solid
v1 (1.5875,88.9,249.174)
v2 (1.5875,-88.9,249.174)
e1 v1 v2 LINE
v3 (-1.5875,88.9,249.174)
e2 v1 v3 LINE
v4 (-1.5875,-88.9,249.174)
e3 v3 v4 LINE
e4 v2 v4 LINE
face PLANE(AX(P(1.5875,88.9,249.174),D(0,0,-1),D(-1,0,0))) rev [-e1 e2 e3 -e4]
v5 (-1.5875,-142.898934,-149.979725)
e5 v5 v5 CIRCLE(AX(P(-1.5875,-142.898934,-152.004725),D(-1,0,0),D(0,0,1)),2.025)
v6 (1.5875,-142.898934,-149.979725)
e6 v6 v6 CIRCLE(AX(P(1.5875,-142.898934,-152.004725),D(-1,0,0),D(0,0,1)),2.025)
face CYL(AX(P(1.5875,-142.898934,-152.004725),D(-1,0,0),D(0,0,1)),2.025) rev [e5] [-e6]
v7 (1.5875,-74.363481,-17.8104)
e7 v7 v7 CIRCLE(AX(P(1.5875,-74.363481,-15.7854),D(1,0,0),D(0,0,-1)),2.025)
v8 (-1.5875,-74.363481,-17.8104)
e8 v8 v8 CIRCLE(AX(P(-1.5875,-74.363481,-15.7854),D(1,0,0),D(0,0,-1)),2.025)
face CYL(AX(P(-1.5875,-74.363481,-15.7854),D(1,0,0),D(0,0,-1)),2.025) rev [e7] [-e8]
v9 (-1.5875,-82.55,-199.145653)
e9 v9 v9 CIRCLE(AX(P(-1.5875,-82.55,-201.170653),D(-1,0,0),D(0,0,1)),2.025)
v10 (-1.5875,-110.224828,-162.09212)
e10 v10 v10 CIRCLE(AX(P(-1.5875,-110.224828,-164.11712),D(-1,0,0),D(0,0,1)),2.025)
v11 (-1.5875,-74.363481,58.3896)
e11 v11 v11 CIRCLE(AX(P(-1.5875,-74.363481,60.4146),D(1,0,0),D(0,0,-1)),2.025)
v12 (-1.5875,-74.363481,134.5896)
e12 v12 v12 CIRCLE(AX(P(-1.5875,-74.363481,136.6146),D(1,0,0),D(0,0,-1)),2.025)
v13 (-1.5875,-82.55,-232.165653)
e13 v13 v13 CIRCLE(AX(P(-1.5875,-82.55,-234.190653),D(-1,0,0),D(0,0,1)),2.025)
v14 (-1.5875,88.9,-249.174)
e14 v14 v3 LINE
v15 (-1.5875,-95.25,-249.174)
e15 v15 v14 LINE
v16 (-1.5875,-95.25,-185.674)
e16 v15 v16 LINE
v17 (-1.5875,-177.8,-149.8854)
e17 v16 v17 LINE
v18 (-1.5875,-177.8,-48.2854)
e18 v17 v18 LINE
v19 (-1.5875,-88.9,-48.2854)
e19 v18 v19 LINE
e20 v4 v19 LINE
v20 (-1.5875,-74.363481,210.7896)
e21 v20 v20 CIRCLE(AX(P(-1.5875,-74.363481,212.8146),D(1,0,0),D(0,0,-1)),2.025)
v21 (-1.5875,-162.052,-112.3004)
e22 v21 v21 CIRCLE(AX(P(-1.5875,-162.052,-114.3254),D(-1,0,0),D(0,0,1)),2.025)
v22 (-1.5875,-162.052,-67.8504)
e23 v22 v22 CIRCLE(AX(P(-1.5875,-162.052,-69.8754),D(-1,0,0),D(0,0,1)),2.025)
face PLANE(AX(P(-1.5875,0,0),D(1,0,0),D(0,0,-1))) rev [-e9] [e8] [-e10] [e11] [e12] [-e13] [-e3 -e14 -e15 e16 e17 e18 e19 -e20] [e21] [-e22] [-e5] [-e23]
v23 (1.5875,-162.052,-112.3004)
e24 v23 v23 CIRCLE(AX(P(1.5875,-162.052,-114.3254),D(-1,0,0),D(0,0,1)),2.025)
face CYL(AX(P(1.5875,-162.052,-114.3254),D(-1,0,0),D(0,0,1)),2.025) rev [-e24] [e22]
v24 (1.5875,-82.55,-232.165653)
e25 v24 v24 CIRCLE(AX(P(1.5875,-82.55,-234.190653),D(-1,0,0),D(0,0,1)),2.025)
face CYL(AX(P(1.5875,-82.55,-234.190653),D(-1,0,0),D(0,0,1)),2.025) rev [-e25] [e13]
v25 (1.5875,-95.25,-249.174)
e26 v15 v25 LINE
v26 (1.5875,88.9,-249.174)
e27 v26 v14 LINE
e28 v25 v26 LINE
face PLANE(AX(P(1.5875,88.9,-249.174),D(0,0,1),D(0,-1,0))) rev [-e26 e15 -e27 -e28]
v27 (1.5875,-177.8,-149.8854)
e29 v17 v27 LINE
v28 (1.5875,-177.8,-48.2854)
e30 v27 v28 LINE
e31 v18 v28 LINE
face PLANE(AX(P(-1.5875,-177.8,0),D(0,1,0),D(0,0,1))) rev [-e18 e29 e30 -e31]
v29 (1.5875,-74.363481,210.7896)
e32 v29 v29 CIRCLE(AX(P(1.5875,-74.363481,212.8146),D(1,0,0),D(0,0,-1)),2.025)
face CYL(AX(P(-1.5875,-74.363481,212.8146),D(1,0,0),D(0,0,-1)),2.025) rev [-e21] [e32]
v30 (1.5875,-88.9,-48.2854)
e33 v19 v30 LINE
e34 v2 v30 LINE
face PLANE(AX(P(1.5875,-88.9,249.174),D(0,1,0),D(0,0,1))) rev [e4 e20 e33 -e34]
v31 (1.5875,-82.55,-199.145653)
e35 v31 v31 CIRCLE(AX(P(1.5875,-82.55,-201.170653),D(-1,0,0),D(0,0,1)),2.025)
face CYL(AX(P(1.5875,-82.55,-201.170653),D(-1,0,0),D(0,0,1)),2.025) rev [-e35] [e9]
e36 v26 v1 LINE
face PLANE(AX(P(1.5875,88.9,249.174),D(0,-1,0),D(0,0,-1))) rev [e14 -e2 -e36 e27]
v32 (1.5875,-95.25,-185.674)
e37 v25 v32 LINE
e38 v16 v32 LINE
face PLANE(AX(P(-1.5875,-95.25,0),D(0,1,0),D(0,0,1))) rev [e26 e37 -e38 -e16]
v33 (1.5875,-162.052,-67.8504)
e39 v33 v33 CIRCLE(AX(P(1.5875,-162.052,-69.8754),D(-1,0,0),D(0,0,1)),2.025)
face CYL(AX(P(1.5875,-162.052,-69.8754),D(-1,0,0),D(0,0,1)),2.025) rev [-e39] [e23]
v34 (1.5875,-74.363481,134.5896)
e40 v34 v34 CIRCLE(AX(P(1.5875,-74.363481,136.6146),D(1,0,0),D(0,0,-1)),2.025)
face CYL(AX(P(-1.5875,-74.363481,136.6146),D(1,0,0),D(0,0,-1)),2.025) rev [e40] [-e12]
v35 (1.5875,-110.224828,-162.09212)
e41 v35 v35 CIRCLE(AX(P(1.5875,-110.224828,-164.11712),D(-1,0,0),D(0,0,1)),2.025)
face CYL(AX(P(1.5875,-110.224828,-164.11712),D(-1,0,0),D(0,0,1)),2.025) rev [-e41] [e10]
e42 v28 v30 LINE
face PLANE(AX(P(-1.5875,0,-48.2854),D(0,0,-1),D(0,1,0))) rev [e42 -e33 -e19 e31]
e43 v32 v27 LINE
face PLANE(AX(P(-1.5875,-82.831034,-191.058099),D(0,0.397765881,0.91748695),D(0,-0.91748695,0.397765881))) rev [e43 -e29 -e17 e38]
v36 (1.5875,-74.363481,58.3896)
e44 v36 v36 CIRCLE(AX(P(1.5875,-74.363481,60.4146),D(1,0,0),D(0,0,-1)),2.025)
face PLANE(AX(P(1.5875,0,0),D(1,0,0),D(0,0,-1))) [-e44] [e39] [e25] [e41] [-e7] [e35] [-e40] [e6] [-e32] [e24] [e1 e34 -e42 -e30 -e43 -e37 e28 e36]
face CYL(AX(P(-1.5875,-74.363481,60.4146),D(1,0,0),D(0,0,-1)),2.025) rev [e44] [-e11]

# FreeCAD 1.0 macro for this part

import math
import FreeCAD as App
import Part
import Sketcher
Q = App.Units.Quantity

doc = App.newDocument("Part")
body = doc.addObject("PartDesign::Body", "Body")

# Sketch on YZ plane
sketch1 = doc.addObject("Sketcher::SketchObject", "Sketch")
body.addObject(sketch1)
sketch1.AttachmentSupport = (doc.YZ_Plane, [""])
sketch1.MapMode = "FlatFace"
sketch1.addGeometry(Part.LineSegment(App.Vector(89, 249, 0), App.Vector(-89, 249, 0)), False)
sketch1.addGeometry(Part.LineSegment(App.Vector(-89, 249, 0), App.Vector(-89, -249, 0)), False)
sketch1.addGeometry(Part.LineSegment(App.Vector(-89, -249, 0), App.Vector(89, -249, 0)), False)
sketch1.addGeometry(Part.LineSegment(App.Vector(89, -249, 0), App.Vector(89, 249, 0)), False)
sketch1.addConstraint(Sketcher.Constraint("Coincident", 0, 2, 1, 1))
sketch1.addConstraint(Sketcher.Constraint("Coincident", 1, 2, 2, 1))
sketch1.addConstraint(Sketcher.Constraint("Coincident", 2, 2, 3, 1))
sketch1.addConstraint(Sketcher.Constraint("Coincident", 3, 2, 0, 1))
sketch1.addConstraint(Sketcher.Constraint("Horizontal", 0))
sketch1.addConstraint(Sketcher.Constraint("Vertical", 1))
sketch1.addConstraint(Sketcher.Constraint("Horizontal", 2))
sketch1.addConstraint(Sketcher.Constraint("Vertical", 3))
sketch1.addConstraint(Sketcher.Constraint("Symmetric", 0, 2, 2, 2, -1, 1))
sketch1.addConstraint(Sketcher.Constraint("DistanceX", 0, 2, 0, 1, Q("7 in")))
sketch1.addConstraint(Sketcher.Constraint("DistanceY", 1, 2, 1, 1, Q("19.62 in")))
pad1 = doc.addObject("PartDesign::Pad", "Pad")
body.addObject(pad1)
pad1.Profile = sketch1
pad1.Length = Q("0.125 in")
pad1.Midplane = True

# Sketch on YZ plane
sketch2 = doc.addObject("Sketcher::SketchObject", "Sketch001")
body.addObject(sketch2)
sketch2.AttachmentSupport = (doc.YZ_Plane, [""])
sketch2.MapMode = "FlatFace"
sketch2.AttachmentOffset = App.Placement(App.Vector(0, 0, 0.0625 * 25.4), App.Rotation())
sketch2.addGeometry(Part.LineSegment(App.Vector(-95, -249, 0), App.Vector(-89, -249, 0)), False)
sketch2.addGeometry(Part.LineSegment(App.Vector(-89, -249, 0), App.Vector(-89, -48, 0)), False)
sketch2.addGeometry(Part.LineSegment(App.Vector(-89, -48, 0), App.Vector(-178, -48, 0)), False)
sketch2.addGeometry(Part.LineSegment(App.Vector(-178, -48, 0), App.Vector(-178, -150, 0)), False)
sketch2.addGeometry(Part.LineSegment(App.Vector(-178, -150, 0), App.Vector(-95, -186, 0)), False)
sketch2.addGeometry(Part.LineSegment(App.Vector(-95, -186, 0), App.Vector(-95, -249, 0)), False)
sketch2.addConstraint(Sketcher.Constraint("Coincident", 0, 2, 1, 1))
sketch2.addConstraint(Sketcher.Constraint("Coincident", 1, 2, 2, 1))
sketch2.addConstraint(Sketcher.Constraint("Coincident", 2, 2, 3, 1))
sketch2.addConstraint(Sketcher.Constraint("Coincident", 3, 2, 4, 1))
sketch2.addConstraint(Sketcher.Constraint("Coincident", 4, 2, 5, 1))
sketch2.addConstraint(Sketcher.Constraint("Coincident", 5, 2, 0, 1))
sketch2.addConstraint(Sketcher.Constraint("Horizontal", 0))
sketch2.addConstraint(Sketcher.Constraint("Vertical", 1))
sketch2.addConstraint(Sketcher.Constraint("Horizontal", 2))
sketch2.addConstraint(Sketcher.Constraint("Vertical", 3))
sketch2.addConstraint(Sketcher.Constraint("Vertical", 5))
sketch2.addConstraint(Sketcher.Constraint("DistanceY", 3, 2, 3, 1, Q("4 in")))
sketch2.addConstraint(Sketcher.Constraint("DistanceX", 2, 2, 2, 1, Q("3.5 in")))
sketch2.addConstraint(Sketcher.Constraint("DistanceY", 5, 2, 5, 1, Q("2.5 in")))
sketch2.addConstraint(Sketcher.Constraint("DistanceX", 2, 2, -1, 1, Q("7 in")))
sketch2.addConstraint(Sketcher.Constraint("DistanceX", 0, 1, 0, 2, Q("0.25 in")))
sketch2.addConstraint(Sketcher.Constraint("DistanceY", 1, 1, 1, 2, Q("7.909 in")))
sketch2.addConstraint(Sketcher.Constraint("DistanceY", 0, 2, -1, 1, Q("9.81 in")))
pad2 = doc.addObject("PartDesign::Pad", "Pad001")
body.addObject(pad2)
pad2.Profile = sketch2
pad2.Length = Q("0.125 in")
pad2.Reversed = True

# Sketch on YZ plane
sketch3 = doc.addObject("Sketcher::SketchObject", "Sketch002")
body.addObject(sketch3)
sketch3.AttachmentSupport = (doc.YZ_Plane, [""])
sketch3.MapMode = "FlatFace"
sketch3.AttachmentOffset = App.Placement(App.Vector(0, 0, 0.0625 * 25.4), App.Rotation())
sketch3.addGeometry(Part.Circle(App.Vector(-74.4, -15.8, 0), App.Vector(0, 0, 1), 2), False)
sketch3.addConstraint(Sketcher.Constraint("Diameter", 0, 4.05))
sketch3.addConstraint(Sketcher.Constraint("DistanceY", 0, 3, -1, 1, 15.7854))
sketch3.addConstraint(Sketcher.Constraint("DistanceX", 0, 3, -1, 1, 74.363481))
pocket1 = doc.addObject("PartDesign::Pocket", "Pocket")
body.addObject(pocket1)
pocket1.Profile = sketch3
pocket1.Type = "ThroughAll"
doc.recompute()

linearpattern = doc.addObject("PartDesign::LinearPattern", "LinearPattern")
body.addObject(linearpattern)
linearpattern.Originals = [pocket1]
linearpattern.Direction = (doc.Z_Axis, [""])
linearpattern.Mode = "offset"
linearpattern.Offset = Q("3 in")
linearpattern.Occurrences = 4
body.Tip = linearpattern

# Sketch on YZ plane
sketch4 = doc.addObject("Sketcher::SketchObject", "Sketch003")
body.addObject(sketch4)
sketch4.AttachmentSupport = (doc.YZ_Plane, [""])
sketch4.MapMode = "FlatFace"
sketch4.AttachmentOffset = App.Placement(App.Vector(0, 0, -0.0625 * 25.4), App.Rotation())
sketch4.addGeometry(Part.ArcOfCircle(Part.Circle(App.Vector(-162.1, -69.9, 0), App.Vector(0, 0, 1), 2), math.radians(180), math.radians(450)), False)
sketch4.addGeometry(Part.ArcOfCircle(Part.Circle(App.Vector(-162.1, -69.9, 0), App.Vector(0, 0, 1), 2), math.radians(90), math.radians(180)), False)
sketch4.addConstraint(Sketcher.Constraint("Tangent", 0, 1, 1, 2))
sketch4.addConstraint(Sketcher.Constraint("Coincident", 1, 1, 0, 2))
sketch4.addConstraint(Sketcher.Constraint("Horizontal", 1, 3, 0, 1))
sketch4.addConstraint(Sketcher.Constraint("Vertical", 0, 3, 1, 1))
sketch4.addConstraint(Sketcher.Constraint("DistanceX", 0, 3, -1, 1, Q("6.38 in")))
sketch4.addConstraint(Sketcher.Constraint("Radius", 0, 2.025))
sketch4.addConstraint(Sketcher.Constraint("DistanceY", 0, 3, -1, 1, Q("2.751 in")))
pocket2 = doc.addObject("PartDesign::Pocket", "Pocket001")
body.addObject(pocket2)
pocket2.Profile = sketch4
pocket2.Type = "ThroughAll"
pocket2.Reversed = True
doc.recompute()

linearpattern2 = doc.addObject("PartDesign::LinearPattern", "LinearPattern001")
body.addObject(linearpattern2)
linearpattern2.Originals = [pocket2]
linearpattern2.Direction = (doc.Z_Axis, [""])
linearpattern2.Mode = "offset"
linearpattern2.Offset = Q("1.75 in")
linearpattern2.Occurrences = 2
linearpattern2.Reversed = True
body.Tip = linearpattern2

# Sketch on YZ plane
sketch5 = doc.addObject("Sketcher::SketchObject", "Sketch004")
body.addObject(sketch5)
sketch5.AttachmentSupport = (doc.YZ_Plane, [""])
sketch5.MapMode = "FlatFace"
sketch5.AttachmentOffset = App.Placement(App.Vector(0, 0, -0.0625 * 25.4), App.Rotation())
sketch5.addGeometry(Part.Circle(App.Vector(-142.9, -152, 0), App.Vector(0, 0, 1), 2), False)
sketch5.addConstraint(Sketcher.Constraint("Diameter", 0, 4.05))
sketch5.addConstraint(Sketcher.Constraint("DistanceX", 0, 3, -1, 1, 142.898934))
sketch5.addConstraint(Sketcher.Constraint("DistanceY", 0, 3, -1, 1, 152.004725))
pocket3 = doc.addObject("PartDesign::Pocket", "Pocket002")
body.addObject(pocket3)
pocket3.Profile = sketch5
pocket3.Type = "ThroughAll"
pocket3.Reversed = True

# Sketch on YZ plane
sketch6 = doc.addObject("Sketcher::SketchObject", "Sketch005")
body.addObject(sketch6)
sketch6.AttachmentSupport = (doc.YZ_Plane, [""])
sketch6.MapMode = "FlatFace"
sketch6.AttachmentOffset = App.Placement(App.Vector(0, 0, -0.0625 * 25.4), App.Rotation())
sketch6.addGeometry(Part.Circle(App.Vector(-110.2, -164.1, 0), App.Vector(0, 0, 1), 2), False)
sketch6.addConstraint(Sketcher.Constraint("Diameter", 0, 4.05))
sketch6.addConstraint(Sketcher.Constraint("DistanceY", 0, 3, -1, 1, 164.11712))
sketch6.addConstraint(Sketcher.Constraint("DistanceX", 0, 3, -1, 1, 110.224828))
pocket4 = doc.addObject("PartDesign::Pocket", "Pocket003")
body.addObject(pocket4)
pocket4.Profile = sketch6
pocket4.Type = "ThroughAll"
pocket4.Reversed = True

# Sketch on YZ plane
sketch7 = doc.addObject("Sketcher::SketchObject", "Sketch006")
body.addObject(sketch7)
sketch7.AttachmentSupport = (doc.YZ_Plane, [""])
sketch7.MapMode = "FlatFace"
sketch7.AttachmentOffset = App.Placement(App.Vector(0, 0, -0.0625 * 25.4), App.Rotation())
sketch7.addGeometry(Part.Circle(App.Vector(-82.5, -201.2, 0), App.Vector(0, 0, 1), 2), False)
sketch7.addConstraint(Sketcher.Constraint("Diameter", 0, 4.05))
sketch7.addConstraint(Sketcher.Constraint("DistanceX", 0, 3, -1, 1, Q("3.25 in")))
sketch7.addConstraint(Sketcher.Constraint("DistanceY", 0, 3, -1, 1, 201.170653))
pocket5 = doc.addObject("PartDesign::Pocket", "Pocket004")
body.addObject(pocket5)
pocket5.Profile = sketch7
pocket5.Type = "ThroughAll"
pocket5.Reversed = True
doc.recompute()

linearpattern3 = doc.addObject("PartDesign::LinearPattern", "LinearPattern002")
body.addObject(linearpattern3)
linearpattern3.Originals = [pocket5]
linearpattern3.Direction = (doc.Z_Axis, [""])
linearpattern3.Mode = "offset"
linearpattern3.Offset = Q("1.3 in")
linearpattern3.Occurrences = 2
linearpattern3.Reversed = True
body.Tip = linearpattern3

doc.recompute()
